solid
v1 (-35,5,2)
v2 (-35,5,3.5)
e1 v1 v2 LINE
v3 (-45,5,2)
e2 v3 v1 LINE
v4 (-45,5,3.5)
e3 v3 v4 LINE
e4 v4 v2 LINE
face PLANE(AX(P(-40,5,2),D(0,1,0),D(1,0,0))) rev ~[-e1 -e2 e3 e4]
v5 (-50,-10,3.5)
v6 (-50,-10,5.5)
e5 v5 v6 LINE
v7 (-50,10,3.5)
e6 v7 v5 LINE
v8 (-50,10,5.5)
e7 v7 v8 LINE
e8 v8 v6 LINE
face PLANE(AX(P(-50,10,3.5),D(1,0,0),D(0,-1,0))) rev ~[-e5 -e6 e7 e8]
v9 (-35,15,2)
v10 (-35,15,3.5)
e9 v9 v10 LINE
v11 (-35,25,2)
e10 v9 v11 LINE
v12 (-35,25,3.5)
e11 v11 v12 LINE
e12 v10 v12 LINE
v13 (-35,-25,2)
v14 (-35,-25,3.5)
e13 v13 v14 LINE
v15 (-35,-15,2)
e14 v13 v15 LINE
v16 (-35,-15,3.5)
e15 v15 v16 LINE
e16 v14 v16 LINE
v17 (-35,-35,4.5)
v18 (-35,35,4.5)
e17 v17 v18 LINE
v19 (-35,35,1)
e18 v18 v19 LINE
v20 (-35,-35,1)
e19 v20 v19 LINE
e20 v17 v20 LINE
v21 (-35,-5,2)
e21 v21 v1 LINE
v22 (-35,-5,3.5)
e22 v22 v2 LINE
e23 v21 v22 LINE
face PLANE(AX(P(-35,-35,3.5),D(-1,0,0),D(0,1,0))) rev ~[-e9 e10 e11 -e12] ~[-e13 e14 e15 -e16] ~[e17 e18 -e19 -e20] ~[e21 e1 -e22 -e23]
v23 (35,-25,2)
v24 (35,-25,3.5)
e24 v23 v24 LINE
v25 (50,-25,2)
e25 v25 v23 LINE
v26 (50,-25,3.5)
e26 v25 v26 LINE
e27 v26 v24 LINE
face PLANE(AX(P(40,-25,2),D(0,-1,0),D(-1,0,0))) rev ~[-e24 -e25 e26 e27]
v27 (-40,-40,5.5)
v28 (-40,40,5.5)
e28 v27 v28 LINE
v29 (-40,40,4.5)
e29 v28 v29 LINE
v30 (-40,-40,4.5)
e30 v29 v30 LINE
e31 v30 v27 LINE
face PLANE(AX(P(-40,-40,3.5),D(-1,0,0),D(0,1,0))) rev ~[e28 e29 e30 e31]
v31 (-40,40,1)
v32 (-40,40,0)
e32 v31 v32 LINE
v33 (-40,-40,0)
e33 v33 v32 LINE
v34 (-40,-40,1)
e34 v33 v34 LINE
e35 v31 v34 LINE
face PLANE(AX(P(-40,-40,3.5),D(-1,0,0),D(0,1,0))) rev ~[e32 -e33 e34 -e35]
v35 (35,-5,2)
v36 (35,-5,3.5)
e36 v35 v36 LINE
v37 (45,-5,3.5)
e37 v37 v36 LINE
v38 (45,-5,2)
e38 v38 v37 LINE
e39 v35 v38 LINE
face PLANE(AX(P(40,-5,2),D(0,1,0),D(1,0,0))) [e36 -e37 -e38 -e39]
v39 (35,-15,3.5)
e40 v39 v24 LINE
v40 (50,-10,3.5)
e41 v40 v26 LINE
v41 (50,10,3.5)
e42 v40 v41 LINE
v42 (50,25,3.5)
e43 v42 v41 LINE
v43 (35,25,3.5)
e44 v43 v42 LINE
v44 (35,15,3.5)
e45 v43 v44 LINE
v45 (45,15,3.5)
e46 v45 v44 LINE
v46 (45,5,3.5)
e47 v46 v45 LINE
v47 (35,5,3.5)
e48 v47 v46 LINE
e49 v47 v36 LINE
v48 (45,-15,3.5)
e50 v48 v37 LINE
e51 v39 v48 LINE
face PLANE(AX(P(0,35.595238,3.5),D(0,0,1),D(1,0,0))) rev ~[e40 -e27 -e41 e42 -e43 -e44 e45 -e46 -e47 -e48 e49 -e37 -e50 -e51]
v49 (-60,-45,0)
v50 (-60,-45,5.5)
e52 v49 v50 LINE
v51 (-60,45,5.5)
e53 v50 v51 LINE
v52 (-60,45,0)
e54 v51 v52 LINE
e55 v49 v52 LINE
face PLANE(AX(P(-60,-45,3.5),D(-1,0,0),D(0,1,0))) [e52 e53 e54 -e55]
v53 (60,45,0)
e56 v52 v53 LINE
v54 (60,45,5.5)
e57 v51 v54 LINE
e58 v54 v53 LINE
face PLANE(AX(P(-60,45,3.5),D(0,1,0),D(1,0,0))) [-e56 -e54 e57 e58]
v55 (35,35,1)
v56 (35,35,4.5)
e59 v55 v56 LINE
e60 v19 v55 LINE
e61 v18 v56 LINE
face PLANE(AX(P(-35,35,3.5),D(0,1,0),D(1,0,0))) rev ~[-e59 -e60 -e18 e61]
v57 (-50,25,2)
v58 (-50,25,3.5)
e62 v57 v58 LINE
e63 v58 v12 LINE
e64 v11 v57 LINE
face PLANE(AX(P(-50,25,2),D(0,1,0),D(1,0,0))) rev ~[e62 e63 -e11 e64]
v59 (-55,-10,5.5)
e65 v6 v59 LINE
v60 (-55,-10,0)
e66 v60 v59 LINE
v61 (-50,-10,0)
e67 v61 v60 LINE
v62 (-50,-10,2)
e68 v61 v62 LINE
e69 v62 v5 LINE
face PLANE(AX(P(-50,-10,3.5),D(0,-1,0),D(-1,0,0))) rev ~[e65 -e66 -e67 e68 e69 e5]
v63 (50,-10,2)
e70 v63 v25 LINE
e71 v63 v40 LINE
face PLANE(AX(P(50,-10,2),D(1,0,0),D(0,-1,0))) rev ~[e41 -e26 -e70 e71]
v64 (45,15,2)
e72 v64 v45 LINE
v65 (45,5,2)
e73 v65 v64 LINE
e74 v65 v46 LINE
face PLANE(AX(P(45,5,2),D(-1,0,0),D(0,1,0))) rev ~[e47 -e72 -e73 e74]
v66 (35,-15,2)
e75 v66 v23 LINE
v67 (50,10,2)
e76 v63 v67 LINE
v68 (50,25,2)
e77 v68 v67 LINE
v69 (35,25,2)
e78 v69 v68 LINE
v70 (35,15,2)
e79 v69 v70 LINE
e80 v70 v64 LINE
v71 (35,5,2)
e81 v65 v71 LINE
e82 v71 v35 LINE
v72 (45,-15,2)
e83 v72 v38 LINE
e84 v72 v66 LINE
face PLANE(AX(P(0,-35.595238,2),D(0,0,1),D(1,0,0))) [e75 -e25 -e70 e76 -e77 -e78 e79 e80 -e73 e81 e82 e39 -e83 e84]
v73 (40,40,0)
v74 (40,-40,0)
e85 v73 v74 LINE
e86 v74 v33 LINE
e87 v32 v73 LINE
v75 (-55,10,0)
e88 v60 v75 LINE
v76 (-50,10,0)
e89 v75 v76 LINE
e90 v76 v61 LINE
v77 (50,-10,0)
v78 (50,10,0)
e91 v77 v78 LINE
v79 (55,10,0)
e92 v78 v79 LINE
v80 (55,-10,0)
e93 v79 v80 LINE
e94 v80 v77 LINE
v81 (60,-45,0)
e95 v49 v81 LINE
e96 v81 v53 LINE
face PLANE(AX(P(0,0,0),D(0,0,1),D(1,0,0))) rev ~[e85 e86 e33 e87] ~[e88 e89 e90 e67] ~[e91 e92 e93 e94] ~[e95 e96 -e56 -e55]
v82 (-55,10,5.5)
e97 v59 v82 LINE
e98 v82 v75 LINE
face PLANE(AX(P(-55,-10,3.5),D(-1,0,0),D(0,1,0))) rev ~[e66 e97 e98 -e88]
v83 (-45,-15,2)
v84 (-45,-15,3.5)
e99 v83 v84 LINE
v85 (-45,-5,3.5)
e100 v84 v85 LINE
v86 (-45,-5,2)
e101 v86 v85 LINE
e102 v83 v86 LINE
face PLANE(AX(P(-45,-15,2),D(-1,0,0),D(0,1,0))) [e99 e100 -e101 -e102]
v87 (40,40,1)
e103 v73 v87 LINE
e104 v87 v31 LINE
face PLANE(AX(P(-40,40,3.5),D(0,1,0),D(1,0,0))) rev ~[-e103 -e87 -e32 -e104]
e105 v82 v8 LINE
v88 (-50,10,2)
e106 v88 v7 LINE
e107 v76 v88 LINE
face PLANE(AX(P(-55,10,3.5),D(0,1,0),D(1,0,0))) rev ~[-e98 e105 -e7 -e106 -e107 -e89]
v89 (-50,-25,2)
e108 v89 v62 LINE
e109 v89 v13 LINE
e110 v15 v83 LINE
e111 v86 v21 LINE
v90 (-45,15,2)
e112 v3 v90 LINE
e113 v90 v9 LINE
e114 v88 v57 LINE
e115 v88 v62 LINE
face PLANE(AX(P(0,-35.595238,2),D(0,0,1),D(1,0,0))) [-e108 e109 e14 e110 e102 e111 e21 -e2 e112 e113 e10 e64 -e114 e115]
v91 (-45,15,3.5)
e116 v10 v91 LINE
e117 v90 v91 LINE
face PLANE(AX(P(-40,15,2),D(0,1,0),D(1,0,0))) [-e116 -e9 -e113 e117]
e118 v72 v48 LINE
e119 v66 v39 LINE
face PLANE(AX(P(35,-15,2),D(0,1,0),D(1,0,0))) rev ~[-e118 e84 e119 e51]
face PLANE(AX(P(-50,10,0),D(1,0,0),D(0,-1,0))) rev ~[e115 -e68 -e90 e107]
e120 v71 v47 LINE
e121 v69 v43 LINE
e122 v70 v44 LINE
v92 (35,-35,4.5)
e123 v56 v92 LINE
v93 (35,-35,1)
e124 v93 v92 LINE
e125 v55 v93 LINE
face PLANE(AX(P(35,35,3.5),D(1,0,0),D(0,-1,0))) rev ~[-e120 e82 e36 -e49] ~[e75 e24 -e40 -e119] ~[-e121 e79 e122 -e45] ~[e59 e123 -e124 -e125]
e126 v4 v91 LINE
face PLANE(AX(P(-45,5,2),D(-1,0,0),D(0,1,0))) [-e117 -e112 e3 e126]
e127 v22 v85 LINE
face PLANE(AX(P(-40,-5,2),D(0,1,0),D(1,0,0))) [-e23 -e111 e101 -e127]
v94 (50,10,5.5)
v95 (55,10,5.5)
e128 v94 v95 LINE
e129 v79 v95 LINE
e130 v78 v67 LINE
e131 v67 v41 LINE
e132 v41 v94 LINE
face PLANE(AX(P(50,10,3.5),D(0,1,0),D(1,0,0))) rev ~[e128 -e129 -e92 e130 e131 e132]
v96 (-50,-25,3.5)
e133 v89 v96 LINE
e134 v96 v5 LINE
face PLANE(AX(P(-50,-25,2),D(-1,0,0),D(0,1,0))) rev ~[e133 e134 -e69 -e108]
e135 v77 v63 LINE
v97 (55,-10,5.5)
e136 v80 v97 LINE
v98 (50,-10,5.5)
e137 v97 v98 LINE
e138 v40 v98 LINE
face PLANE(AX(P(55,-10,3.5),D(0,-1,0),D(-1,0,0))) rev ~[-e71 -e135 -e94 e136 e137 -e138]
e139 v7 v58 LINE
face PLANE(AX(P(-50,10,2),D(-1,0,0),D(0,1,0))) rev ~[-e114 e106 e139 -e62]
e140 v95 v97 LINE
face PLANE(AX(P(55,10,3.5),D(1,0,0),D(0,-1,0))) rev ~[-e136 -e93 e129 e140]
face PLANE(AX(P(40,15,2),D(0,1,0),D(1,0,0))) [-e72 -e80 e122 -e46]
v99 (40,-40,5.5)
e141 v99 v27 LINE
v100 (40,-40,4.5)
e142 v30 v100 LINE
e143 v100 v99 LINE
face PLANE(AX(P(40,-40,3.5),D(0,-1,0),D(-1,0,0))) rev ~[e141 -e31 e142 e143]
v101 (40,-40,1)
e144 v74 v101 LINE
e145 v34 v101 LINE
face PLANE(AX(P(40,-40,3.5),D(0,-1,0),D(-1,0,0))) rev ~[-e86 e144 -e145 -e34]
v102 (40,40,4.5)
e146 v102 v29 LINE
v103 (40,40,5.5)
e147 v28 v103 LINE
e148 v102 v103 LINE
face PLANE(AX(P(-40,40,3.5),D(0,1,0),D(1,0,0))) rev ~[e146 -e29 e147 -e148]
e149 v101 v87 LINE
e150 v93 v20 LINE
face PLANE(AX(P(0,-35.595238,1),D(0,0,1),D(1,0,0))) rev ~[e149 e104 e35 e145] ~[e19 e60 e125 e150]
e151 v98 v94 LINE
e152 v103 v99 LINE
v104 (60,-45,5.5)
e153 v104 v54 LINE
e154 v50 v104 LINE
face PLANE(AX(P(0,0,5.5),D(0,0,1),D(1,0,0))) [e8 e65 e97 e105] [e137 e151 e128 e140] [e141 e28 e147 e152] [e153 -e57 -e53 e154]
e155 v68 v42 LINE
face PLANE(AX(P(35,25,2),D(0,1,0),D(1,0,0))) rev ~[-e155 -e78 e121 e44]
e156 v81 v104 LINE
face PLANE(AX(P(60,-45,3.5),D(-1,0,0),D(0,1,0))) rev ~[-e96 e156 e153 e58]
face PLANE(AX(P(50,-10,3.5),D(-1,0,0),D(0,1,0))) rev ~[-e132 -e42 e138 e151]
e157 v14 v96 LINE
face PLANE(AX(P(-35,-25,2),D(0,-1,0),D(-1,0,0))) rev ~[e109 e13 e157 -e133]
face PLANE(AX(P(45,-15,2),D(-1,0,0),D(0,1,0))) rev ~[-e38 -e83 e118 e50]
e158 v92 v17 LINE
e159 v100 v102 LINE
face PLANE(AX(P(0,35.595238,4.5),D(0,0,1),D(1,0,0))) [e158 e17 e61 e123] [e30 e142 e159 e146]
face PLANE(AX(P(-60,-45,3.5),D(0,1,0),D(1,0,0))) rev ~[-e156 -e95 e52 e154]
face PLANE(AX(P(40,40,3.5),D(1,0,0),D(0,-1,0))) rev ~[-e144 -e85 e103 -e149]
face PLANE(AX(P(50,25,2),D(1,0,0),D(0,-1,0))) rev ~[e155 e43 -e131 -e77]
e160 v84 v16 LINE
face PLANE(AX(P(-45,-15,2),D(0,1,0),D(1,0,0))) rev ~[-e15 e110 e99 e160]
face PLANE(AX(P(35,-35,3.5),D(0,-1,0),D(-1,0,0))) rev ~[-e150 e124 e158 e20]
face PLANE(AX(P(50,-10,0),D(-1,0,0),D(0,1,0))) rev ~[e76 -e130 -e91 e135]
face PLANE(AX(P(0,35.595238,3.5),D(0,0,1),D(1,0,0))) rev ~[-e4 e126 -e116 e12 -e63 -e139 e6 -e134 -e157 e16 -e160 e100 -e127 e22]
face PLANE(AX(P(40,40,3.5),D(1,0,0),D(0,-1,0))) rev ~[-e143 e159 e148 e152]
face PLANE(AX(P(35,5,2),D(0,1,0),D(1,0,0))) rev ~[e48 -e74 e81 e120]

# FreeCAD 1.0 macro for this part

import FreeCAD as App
import Part
import Sketcher

V = App.Vector


def add_polygon(sketch, points):
    """Adds a closed chain of lines whose ends are joined by coincident constraints."""
    first, n = sketch.GeometryCount, len(points)
    for a, b in zip(points, points[1:] + points[:1]):
        sketch.addGeometry(Part.LineSegment(App.Vector(*a, 0), App.Vector(*b, 0)), False)
    for i in range(n):
        sketch.addConstraint(Sketcher.Constraint("Coincident", first + i, 2, first + (i + 1) % n, 1))

doc = App.newDocument("Part")
body = doc.addObject("PartDesign::Body", "Body")

sketch1 = body.newObject("Sketcher::SketchObject", "Sketch")
sketch1.AttachmentSupport = (doc.getObject("XY_Plane"), [""])
sketch1.MapMode = "FlatFace"
add_polygon(sketch1, [(-60, 45), (-60, -45), (60, -45), (60, 45)])
add_polygon(sketch1, [(-40, 40), (40, 40), (40, -40), (-40, -40)])
add_polygon(sketch1, [(50, 10), (55, 10), (55, -10), (50, -10)])
add_polygon(sketch1, [(-55, 10), (-50, 10), (-50, -10), (-55, -10)])
sketch1.addConstraint([
    Sketcher.Constraint("Vertical", 0),
    Sketcher.Constraint("Horizontal", 1),
    Sketcher.Constraint("Vertical", 2),
    Sketcher.Constraint("Horizontal", 3),
    Sketcher.Constraint("Horizontal", 4),
    Sketcher.Constraint("Vertical", 5),
    Sketcher.Constraint("Horizontal", 6),
    Sketcher.Constraint("Vertical", 7),
    Sketcher.Constraint("Horizontal", 8),
    Sketcher.Constraint("Vertical", 9),
    Sketcher.Constraint("Horizontal", 10),
    Sketcher.Constraint("Vertical", 11),
    Sketcher.Constraint("Horizontal", 12),
    Sketcher.Constraint("Vertical", 13),
    Sketcher.Constraint("Horizontal", 14),
    Sketcher.Constraint("Vertical", 15),
    Sketcher.Constraint("Symmetric", 0, 2, 2, 2, -1, 1),
    Sketcher.Constraint("Symmetric", 4, 2, 6, 2, -1, 1),
    Sketcher.Constraint("Symmetric", 10, 2, 12, 2, -1, 1),
    Sketcher.Constraint("Symmetric", 8, 2, 14, 2, -1, 1),
    Sketcher.Constraint("Horizontal", 11, 2, 12, 2),
    Sketcher.Constraint("Equal", 6, 5),
    Sketcher.Constraint("DistanceX", 1, 1, 1, 2, 120.0),
    Sketcher.Constraint("DistanceX", 4, 1, 4, 2, 80.0),
    Sketcher.Constraint("DistanceX", 8, 1, 8, 2, 5.0),
    Sketcher.Constraint("DistanceY", 0, 2, 0, 1, 90.0),
    Sketcher.Constraint("DistanceY", 9, 2, 9, 1, 20.0),
    Sketcher.Constraint("DistanceX", -1, 1, 8, 2, 55.0),
])
pad1 = body.newObject("PartDesign::Pad", "Pad")
pad1.Profile = sketch1
pad1.Length = 2

sketch2 = body.newObject("Sketcher::SketchObject", "Sketch001")
sketch2.AttachmentSupport = (doc.getObject("XY_Plane"), [""])
sketch2.MapMode = "FlatFace"
sketch2.AttachmentOffset = App.Placement(V(0, 0, 2), App.Rotation())
add_polygon(sketch2, [(-60, 45), (-60, -45), (60, -45), (60, 45)])
add_polygon(sketch2, [(-40, 40), (40, 40), (40, 25), (50, 25), (50, 10), (55, 10), (55, -10), (50, -10), (50, -25), (40, -25), (40, -40), (-40, -40), (-40, -25), (-50, -25), (-50, -10), (-55, -10), (-55, 10), (-50, 10), (-50, 25), (-40, 25)])
add_polygon(sketch2, [(-45, -5), (-45, -15), (-40, -15), (-40, -5)])
add_polygon(sketch2, [(-45, 15), (-45, 5), (-40, 5), (-40, 15)])
add_polygon(sketch2, [(40, 15), (40, 5), (45, 5), (45, 15)])
add_polygon(sketch2, [(40, -5), (40, -15), (45, -15), (45, -5)])
sketch2.addConstraint([
    Sketcher.Constraint("Vertical", 0),
    Sketcher.Constraint("Horizontal", 1),
    Sketcher.Constraint("Vertical", 2),
    Sketcher.Constraint("Horizontal", 3),
    Sketcher.Constraint("Horizontal", 4),
    Sketcher.Constraint("Vertical", 5),
    Sketcher.Constraint("Horizontal", 6),
    Sketcher.Constraint("Vertical", 7),
    Sketcher.Constraint("Horizontal", 8),
    Sketcher.Constraint("Vertical", 9),
    Sketcher.Constraint("Horizontal", 10),
    Sketcher.Constraint("Vertical", 11),
    Sketcher.Constraint("Horizontal", 12),
    Sketcher.Constraint("Vertical", 13),
    Sketcher.Constraint("Horizontal", 14),
    Sketcher.Constraint("Vertical", 15),
    Sketcher.Constraint("Horizontal", 16),
    Sketcher.Constraint("Vertical", 17),
    Sketcher.Constraint("Horizontal", 18),
    Sketcher.Constraint("Vertical", 19),
    Sketcher.Constraint("Horizontal", 20),
    Sketcher.Constraint("Vertical", 21),
    Sketcher.Constraint("Horizontal", 22),
    Sketcher.Constraint("Vertical", 23),
    Sketcher.Constraint("Vertical", 24),
    Sketcher.Constraint("Horizontal", 25),
    Sketcher.Constraint("Vertical", 26),
    Sketcher.Constraint("Horizontal", 27),
    Sketcher.Constraint("Vertical", 28),
    Sketcher.Constraint("Horizontal", 29),
    Sketcher.Constraint("Vertical", 30),
    Sketcher.Constraint("Horizontal", 31),
    Sketcher.Constraint("Vertical", 32),
    Sketcher.Constraint("Horizontal", 33),
    Sketcher.Constraint("Vertical", 34),
    Sketcher.Constraint("Horizontal", 35),
    Sketcher.Constraint("Vertical", 36),
    Sketcher.Constraint("Horizontal", 37),
    Sketcher.Constraint("Vertical", 38),
    Sketcher.Constraint("Horizontal", 39),
    Sketcher.Constraint("Symmetric", 0, 2, 2, 2, -1, 1),
    Sketcher.Constraint("Symmetric", 4, 2, 14, 2, -1, 1),
    Sketcher.Constraint("Symmetric", 6, 2, 16, 2, -1, 1),
    Sketcher.Constraint("Symmetric", 8, 2, 18, 2, -1, 1),
    Sketcher.Constraint("Symmetric", 10, 2, 20, 2, -1, 1),
    Sketcher.Constraint("Symmetric", 12, 2, 22, 2, -1, 1),
    Sketcher.Constraint("Symmetric", 26, 2, 32, 2, -1, 1),
    Sketcher.Constraint("Symmetric", 24, 2, 34, 2, -1, 1),
    Sketcher.Constraint("Symmetric", 30, 2, 36, 2, -1, 1),
    Sketcher.Constraint("Symmetric", 28, 2, 38, 2, -1, 1),
    Sketcher.Constraint("Symmetric", 12, 2, 15, 2, -2),
    Sketcher.Constraint("Symmetric", 10, 2, 17, 2, -2),
    Sketcher.Constraint("Symmetric", 29, 2, 32, 2, -2),
    Sketcher.Constraint("Symmetric", 31, 2, 34, 2, -2),
    Sketcher.Constraint("Vertical", 23, 2, 25, 2),
    Sketcher.Constraint("Equal", 20, 25),
    Sketcher.Constraint("Equal", 5, 7),
    Sketcher.Constraint("Equal", 22, 24),
    Sketcher.Constraint("DistanceX", 1, 1, 1, 2, 120.0),
    Sketcher.Constraint("DistanceX", 4, 1, 4, 2, 80.0),
    Sketcher.Constraint("DistanceX", 6, 1, 6, 2, 10.0),
    Sketcher.Constraint("DistanceX", 8, 1, 8, 2, 5.0),
    Sketcher.Constraint("DistanceY", 0, 2, 0, 1, 90.0),
    Sketcher.Constraint("DistanceY", 5, 2, 5, 1, 15.0),
    Sketcher.Constraint("DistanceY", 9, 2, 9, 1, 20.0),
    Sketcher.Constraint("DistanceY", 24, 2, -1, 1, 15.0),
])
pad2 = body.newObject("PartDesign::Pad", "Pad001")
pad2.Profile = sketch2
pad2.Length = 1.5

sketch3 = body.newObject("Sketcher::SketchObject", "Sketch002")
sketch3.AttachmentSupport = (doc.getObject("XY_Plane"), [""])
sketch3.MapMode = "FlatFace"
sketch3.AttachmentOffset = App.Placement(V(0, 0, 3.5), App.Rotation())
add_polygon(sketch3, [(-60, 45), (-60, -45), (60, -45), (60, 45)])
add_polygon(sketch3, [(-40, 40), (40, 40), (40, -40), (-40, -40)])
add_polygon(sketch3, [(50, 10), (55, 10), (55, -10), (50, -10)])
add_polygon(sketch3, [(-55, 10), (-50, 10), (-50, -10), (-55, -10)])
sketch3.addConstraint([
    Sketcher.Constraint("Vertical", 0),
    Sketcher.Constraint("Horizontal", 1),
    Sketcher.Constraint("Vertical", 2),
    Sketcher.Constraint("Horizontal", 3),
    Sketcher.Constraint("Horizontal", 4),
    Sketcher.Constraint("Vertical", 5),
    Sketcher.Constraint("Horizontal", 6),
    Sketcher.Constraint("Vertical", 7),
    Sketcher.Constraint("Horizontal", 8),
    Sketcher.Constraint("Vertical", 9),
    Sketcher.Constraint("Horizontal", 10),
    Sketcher.Constraint("Vertical", 11),
    Sketcher.Constraint("Horizontal", 12),
    Sketcher.Constraint("Vertical", 13),
    Sketcher.Constraint("Horizontal", 14),
    Sketcher.Constraint("Vertical", 15),
    Sketcher.Constraint("Symmetric", 0, 2, 2, 2, -1, 1),
    Sketcher.Constraint("Symmetric", 4, 2, 6, 2, -1, 1),
    Sketcher.Constraint("Symmetric", 10, 2, 12, 2, -1, 1),
    Sketcher.Constraint("Symmetric", 8, 2, 14, 2, -1, 1),
    Sketcher.Constraint("Horizontal", 11, 2, 12, 2),
    Sketcher.Constraint("Equal", 6, 5),
    Sketcher.Constraint("DistanceX", 1, 1, 1, 2, 120.0),
    Sketcher.Constraint("DistanceX", 4, 1, 4, 2, 80.0),
    Sketcher.Constraint("DistanceX", 8, 1, 8, 2, 5.0),
    Sketcher.Constraint("DistanceY", 0, 2, 0, 1, 90.0),
    Sketcher.Constraint("DistanceY", 9, 2, 9, 1, 20.0),
    Sketcher.Constraint("DistanceX", -1, 1, 8, 2, 55.0),
])
pad3 = body.newObject("PartDesign::Pad", "Pad002")
pad3.Profile = sketch3
pad3.Length = 2

sketch4 = body.newObject("Sketcher::SketchObject", "Sketch003")
sketch4.AttachmentSupport = (doc.getObject("XY_Plane"), [""])
sketch4.MapMode = "FlatFace"
sketch4.AttachmentOffset = App.Placement(V(0, 0, 1), App.Rotation())
add_polygon(sketch4, [(40, 40), (-40, 40), (-40, -40), (40, -40)])
add_polygon(sketch4, [(35, -35), (-35, -35), (-35, 35), (35, 35)])
sketch4.addConstraint([
    Sketcher.Constraint("Horizontal", 0),
    Sketcher.Constraint("Vertical", 1),
    Sketcher.Constraint("Horizontal", 2),
    Sketcher.Constraint("Vertical", 3),
    Sketcher.Constraint("Horizontal", 4),
    Sketcher.Constraint("Vertical", 5),
    Sketcher.Constraint("Horizontal", 6),
    Sketcher.Constraint("Vertical", 7),
    Sketcher.Constraint("Symmetric", 0, 2, 2, 2, -1, 1),
    Sketcher.Constraint("Symmetric", 4, 2, 6, 2, -1, 1),
    Sketcher.Constraint("Equal", 2, 1),
    Sketcher.Constraint("Equal", 6, 5),
    Sketcher.Constraint("DistanceX", 0, 2, 0, 1, 80.0),
    Sketcher.Constraint("DistanceX", 4, 2, 4, 1, 70.0),
])
pad4 = body.newObject("PartDesign::Pad", "Pad003")
pad4.Profile = sketch4
pad4.Length = 1

sketch5 = body.newObject("Sketcher::SketchObject", "Sketch004")
sketch5.AttachmentSupport = (doc.getObject("XY_Plane"), [""])
sketch5.MapMode = "FlatFace"
sketch5.AttachmentOffset = App.Placement(V(0, 0, 2), App.Rotation())
add_polygon(sketch5, [(-40, 15), (-40, 5), (-35, 5), (-35, 15)])
add_polygon(sketch5, [(-40, -5), (-40, -15), (-35, -15), (-35, -5)])
add_polygon(sketch5, [(40, -25), (35, -25), (35, -35), (-35, -35), (-35, -25), (-40, -25), (-40, -40), (40, -40)])
add_polygon(sketch5, [(35, -5), (35, -15), (40, -15), (40, -5)])
add_polygon(sketch5, [(35, 15), (35, 5), (40, 5), (40, 15)])
add_polygon(sketch5, [(-35, 35), (35, 35), (35, 25), (40, 25), (40, 40), (-40, 40), (-40, 25), (-35, 25)])
sketch5.addConstraint([
    Sketcher.Constraint("Vertical", 0),
    Sketcher.Constraint("Horizontal", 1),
    Sketcher.Constraint("Vertical", 2),
    Sketcher.Constraint("Horizontal", 3),
    Sketcher.Constraint("Vertical", 4),
    Sketcher.Constraint("Horizontal", 5),
    Sketcher.Constraint("Vertical", 6),
    Sketcher.Constraint("Horizontal", 7),
    Sketcher.Constraint("Horizontal", 8),
    Sketcher.Constraint("Vertical", 9),
    Sketcher.Constraint("Horizontal", 10),
    Sketcher.Constraint("Vertical", 11),
    Sketcher.Constraint("Horizontal", 12),
    Sketcher.Constraint("Vertical", 13),
    Sketcher.Constraint("Horizontal", 14),
    Sketcher.Constraint("Vertical", 15),
    Sketcher.Constraint("Vertical", 16),
    Sketcher.Constraint("Horizontal", 17),
    Sketcher.Constraint("Vertical", 18),
    Sketcher.Constraint("Horizontal", 19),
    Sketcher.Constraint("Vertical", 20),
    Sketcher.Constraint("Horizontal", 21),
    Sketcher.Constraint("Vertical", 22),
    Sketcher.Constraint("Horizontal", 23),
    Sketcher.Constraint("Horizontal", 24),
    Sketcher.Constraint("Vertical", 25),
    Sketcher.Constraint("Horizontal", 26),
    Sketcher.Constraint("Vertical", 27),
    Sketcher.Constraint("Horizontal", 28),
    Sketcher.Constraint("Vertical", 29),
    Sketcher.Constraint("Horizontal", 30),
    Sketcher.Constraint("Vertical", 31),
    Sketcher.Constraint("Symmetric", 2, 2, 16, 2, -1, 1),
    Sketcher.Constraint("Symmetric", 0, 2, 18, 2, -1, 1),
    Sketcher.Constraint("Symmetric", 6, 2, 20, 2, -1, 1),
    Sketcher.Constraint("Symmetric", 4, 2, 22, 2, -1, 1),
    Sketcher.Constraint("Symmetric", 10, 2, 24, 2, -1, 1),
    Sketcher.Constraint("Symmetric", 12, 2, 26, 2, -1, 1),
    Sketcher.Constraint("Symmetric", 14, 2, 28, 2, -1, 1),
    Sketcher.Constraint("Symmetric", 8, 2, 30, 2, -1, 1),
    Sketcher.Constraint("Symmetric", 8, 2, 11, 2, -2),
    Sketcher.Constraint("Symmetric", 5, 2, 16, 2, -2),
    Sketcher.Constraint("Symmetric", 7, 2, 18, 2, -2),
    Sketcher.Constraint("Vertical", 6, 2, 10, 2),
    Sketcher.Constraint("Vertical", 7, 2, 12, 2),
    Sketcher.Constraint("Vertical", 15, 2, 17, 2),
    Sketcher.Constraint("Equal", 6, 9),
    Sketcher.Constraint("DistanceX", 1, 1, 1, 2, 5.0),
    Sketcher.Constraint("DistanceX", 10, 2, 10, 1, 70.0),
    Sketcher.Constraint("DistanceY", 0, 2, 0, 1, 10.0),
    Sketcher.Constraint("DistanceY", 13, 2, 13, 1, 15.0),
    Sketcher.Constraint("DistanceY", -1, 1, 0, 2, 5.0),
    Sketcher.Constraint("DistanceY", 8, 2, -1, 1, 25.0),
])
pad5 = body.newObject("PartDesign::Pad", "Pad004")
pad5.Profile = sketch5
pad5.Length = 1.5

sketch6 = body.newObject("Sketcher::SketchObject", "Sketch005")
sketch6.AttachmentSupport = (doc.getObject("XY_Plane"), [""])
sketch6.MapMode = "FlatFace"
sketch6.AttachmentOffset = App.Placement(V(0, 0, 3.5), App.Rotation())
add_polygon(sketch6, [(40, 40), (-40, 40), (-40, -40), (40, -40)])
add_polygon(sketch6, [(-35, 35), (35, 35), (35, -35), (-35, -35)])
sketch6.addConstraint([
    Sketcher.Constraint("Horizontal", 0),
    Sketcher.Constraint("Vertical", 1),
    Sketcher.Constraint("Horizontal", 2),
    Sketcher.Constraint("Vertical", 3),
    Sketcher.Constraint("Horizontal", 4),
    Sketcher.Constraint("Vertical", 5),
    Sketcher.Constraint("Horizontal", 6),
    Sketcher.Constraint("Vertical", 7),
    Sketcher.Constraint("Symmetric", 0, 2, 2, 2, -1, 1),
    Sketcher.Constraint("Symmetric", 4, 2, 6, 2, -1, 1),
    Sketcher.Constraint("Equal", 2, 1),
    Sketcher.Constraint("Equal", 6, 5),
    Sketcher.Constraint("DistanceX", 0, 2, 0, 1, 80.0),
    Sketcher.Constraint("DistanceX", 4, 1, 4, 2, 70.0),
])
pad6 = body.newObject("PartDesign::Pad", "Pad005")
pad6.Profile = sketch6
pad6.Length = 1

doc.recompute()
